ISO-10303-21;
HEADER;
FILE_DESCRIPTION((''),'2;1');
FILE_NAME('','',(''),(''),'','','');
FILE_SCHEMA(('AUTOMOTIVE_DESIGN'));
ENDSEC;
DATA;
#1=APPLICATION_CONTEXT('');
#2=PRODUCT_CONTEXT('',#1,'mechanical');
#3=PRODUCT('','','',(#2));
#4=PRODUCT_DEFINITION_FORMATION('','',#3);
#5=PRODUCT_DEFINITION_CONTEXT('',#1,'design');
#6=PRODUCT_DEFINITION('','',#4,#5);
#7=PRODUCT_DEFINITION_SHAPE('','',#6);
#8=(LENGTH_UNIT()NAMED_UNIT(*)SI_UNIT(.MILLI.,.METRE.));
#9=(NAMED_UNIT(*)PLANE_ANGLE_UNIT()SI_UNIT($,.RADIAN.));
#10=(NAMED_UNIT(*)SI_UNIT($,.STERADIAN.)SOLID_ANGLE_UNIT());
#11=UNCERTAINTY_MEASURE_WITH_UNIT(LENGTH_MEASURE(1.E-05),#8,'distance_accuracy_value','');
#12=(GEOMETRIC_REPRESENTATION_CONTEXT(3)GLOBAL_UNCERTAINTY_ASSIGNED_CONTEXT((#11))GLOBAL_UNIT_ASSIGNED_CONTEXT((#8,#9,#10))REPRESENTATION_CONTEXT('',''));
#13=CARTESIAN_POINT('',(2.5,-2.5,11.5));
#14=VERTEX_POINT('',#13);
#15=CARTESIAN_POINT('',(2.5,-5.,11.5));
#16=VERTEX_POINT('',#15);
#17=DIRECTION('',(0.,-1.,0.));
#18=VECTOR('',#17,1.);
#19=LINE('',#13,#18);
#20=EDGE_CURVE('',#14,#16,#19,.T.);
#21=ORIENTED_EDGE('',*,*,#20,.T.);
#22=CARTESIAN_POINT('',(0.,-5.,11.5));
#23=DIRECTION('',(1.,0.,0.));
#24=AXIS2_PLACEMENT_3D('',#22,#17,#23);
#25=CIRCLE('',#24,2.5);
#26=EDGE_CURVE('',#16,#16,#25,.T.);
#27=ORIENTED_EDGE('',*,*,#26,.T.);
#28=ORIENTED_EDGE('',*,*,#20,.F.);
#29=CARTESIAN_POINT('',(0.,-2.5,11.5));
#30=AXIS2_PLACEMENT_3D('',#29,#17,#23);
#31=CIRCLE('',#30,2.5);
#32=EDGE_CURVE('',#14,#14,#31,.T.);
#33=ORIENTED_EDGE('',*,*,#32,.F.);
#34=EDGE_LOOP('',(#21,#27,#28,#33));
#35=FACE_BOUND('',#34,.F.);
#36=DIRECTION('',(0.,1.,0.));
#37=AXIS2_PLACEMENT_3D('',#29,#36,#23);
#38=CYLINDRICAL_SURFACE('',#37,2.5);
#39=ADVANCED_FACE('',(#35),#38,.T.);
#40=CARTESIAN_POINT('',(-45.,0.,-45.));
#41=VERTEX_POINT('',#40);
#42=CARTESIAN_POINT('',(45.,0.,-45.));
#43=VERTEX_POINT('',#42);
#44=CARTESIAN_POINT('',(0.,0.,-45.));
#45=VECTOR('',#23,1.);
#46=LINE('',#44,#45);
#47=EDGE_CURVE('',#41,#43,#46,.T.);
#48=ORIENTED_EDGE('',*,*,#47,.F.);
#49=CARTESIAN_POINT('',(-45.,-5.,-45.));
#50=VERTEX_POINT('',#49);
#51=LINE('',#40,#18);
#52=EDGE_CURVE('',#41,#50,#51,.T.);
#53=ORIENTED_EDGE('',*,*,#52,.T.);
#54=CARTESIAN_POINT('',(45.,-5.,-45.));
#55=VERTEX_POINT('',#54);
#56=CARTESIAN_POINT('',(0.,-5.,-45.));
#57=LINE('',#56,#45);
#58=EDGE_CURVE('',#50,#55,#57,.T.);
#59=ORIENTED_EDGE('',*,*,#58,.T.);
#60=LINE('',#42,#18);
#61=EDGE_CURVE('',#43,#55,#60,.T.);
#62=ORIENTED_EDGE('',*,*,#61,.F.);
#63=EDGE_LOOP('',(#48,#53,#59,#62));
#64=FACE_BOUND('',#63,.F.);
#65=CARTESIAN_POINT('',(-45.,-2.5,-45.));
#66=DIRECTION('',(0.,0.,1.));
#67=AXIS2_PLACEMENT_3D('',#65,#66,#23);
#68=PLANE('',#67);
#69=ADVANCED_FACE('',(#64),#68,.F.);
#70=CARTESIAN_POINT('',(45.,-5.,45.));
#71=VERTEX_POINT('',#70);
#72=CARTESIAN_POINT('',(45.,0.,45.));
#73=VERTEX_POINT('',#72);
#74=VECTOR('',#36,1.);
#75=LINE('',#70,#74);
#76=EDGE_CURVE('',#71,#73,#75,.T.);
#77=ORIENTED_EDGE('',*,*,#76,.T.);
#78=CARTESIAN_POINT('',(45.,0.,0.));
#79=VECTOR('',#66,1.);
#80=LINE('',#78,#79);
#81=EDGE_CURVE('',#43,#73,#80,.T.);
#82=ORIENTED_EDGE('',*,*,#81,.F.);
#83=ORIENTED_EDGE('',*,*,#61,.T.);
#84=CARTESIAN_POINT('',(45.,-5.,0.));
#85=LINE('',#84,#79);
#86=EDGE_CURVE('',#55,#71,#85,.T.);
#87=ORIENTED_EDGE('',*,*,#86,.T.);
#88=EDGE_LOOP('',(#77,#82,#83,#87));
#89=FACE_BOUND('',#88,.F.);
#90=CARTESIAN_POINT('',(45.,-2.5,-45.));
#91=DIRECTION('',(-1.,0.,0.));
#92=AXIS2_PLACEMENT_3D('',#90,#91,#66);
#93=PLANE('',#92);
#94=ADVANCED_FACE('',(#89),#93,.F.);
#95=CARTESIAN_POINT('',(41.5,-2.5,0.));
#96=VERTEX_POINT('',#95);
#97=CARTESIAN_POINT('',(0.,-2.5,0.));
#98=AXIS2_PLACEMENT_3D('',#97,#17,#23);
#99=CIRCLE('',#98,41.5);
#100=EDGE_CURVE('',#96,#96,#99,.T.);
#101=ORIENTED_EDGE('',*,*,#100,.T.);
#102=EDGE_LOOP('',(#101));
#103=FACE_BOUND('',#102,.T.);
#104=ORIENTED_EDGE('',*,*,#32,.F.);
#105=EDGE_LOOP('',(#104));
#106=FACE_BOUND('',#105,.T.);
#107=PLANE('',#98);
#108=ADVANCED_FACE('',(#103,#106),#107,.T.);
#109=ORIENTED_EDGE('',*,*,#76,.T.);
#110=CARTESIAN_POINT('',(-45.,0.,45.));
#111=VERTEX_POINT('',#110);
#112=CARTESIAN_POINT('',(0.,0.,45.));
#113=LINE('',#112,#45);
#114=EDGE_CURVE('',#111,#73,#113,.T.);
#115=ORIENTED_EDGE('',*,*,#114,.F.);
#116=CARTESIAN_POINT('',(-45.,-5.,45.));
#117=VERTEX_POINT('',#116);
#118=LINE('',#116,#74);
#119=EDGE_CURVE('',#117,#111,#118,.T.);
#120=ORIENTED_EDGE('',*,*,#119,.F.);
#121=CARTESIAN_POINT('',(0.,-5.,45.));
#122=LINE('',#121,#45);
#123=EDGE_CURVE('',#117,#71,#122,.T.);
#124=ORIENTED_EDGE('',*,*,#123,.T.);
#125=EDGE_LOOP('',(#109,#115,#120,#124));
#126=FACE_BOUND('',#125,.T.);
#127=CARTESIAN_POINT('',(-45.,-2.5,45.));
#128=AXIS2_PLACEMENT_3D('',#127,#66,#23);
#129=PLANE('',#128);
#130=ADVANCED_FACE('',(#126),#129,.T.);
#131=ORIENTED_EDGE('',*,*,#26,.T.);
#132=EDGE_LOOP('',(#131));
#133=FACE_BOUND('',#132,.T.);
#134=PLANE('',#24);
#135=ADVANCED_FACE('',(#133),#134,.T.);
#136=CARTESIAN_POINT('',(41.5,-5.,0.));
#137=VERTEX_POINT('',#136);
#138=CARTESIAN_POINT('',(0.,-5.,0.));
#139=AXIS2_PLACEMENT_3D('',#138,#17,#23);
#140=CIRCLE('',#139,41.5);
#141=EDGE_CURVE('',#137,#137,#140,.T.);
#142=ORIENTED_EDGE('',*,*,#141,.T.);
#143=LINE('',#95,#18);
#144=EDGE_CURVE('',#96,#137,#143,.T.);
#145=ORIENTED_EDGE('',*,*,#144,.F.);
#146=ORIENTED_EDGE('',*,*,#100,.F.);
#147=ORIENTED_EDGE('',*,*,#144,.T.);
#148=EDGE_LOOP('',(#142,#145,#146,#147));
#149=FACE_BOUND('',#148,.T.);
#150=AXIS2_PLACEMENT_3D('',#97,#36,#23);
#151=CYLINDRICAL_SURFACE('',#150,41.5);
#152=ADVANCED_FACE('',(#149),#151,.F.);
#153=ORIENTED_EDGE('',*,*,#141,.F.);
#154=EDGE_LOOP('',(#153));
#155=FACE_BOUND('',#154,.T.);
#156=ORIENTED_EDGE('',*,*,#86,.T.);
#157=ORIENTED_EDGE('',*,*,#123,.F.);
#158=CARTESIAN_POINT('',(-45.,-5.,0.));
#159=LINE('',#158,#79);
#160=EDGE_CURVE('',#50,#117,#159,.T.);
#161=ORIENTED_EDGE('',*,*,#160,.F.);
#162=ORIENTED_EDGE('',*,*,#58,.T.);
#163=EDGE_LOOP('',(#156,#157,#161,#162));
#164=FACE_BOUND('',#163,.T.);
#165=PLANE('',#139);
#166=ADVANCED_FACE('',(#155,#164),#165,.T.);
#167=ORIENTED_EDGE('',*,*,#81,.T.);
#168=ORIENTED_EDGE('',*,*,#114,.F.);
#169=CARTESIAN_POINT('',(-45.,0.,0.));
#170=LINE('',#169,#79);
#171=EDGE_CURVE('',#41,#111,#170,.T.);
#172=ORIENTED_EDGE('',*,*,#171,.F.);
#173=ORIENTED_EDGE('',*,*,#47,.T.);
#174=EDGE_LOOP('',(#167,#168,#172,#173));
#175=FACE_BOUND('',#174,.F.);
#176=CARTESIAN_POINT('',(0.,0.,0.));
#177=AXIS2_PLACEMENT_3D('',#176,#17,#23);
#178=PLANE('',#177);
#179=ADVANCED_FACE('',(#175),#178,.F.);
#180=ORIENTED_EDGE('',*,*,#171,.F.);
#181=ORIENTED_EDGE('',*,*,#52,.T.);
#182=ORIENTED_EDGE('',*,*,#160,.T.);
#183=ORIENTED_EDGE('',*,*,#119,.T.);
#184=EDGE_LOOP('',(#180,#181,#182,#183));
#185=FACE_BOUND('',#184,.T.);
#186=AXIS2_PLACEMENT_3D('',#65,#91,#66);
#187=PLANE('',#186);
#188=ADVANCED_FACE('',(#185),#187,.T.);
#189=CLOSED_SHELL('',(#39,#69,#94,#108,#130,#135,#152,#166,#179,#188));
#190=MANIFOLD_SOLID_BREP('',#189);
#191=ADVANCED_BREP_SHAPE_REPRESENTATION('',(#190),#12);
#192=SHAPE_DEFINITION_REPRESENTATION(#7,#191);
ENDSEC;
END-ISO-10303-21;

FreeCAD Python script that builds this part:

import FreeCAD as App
import Part
import Sketcher

doc = App.newDocument("Part")
params = doc.addObject("Spreadsheet::Sheet", "Params")
for row, (alias, value) in enumerate([
    ("sketch1_width", "90 mm"),
    ("pad1_length", "2.5 mm"),
    ("sketch2_diameter", "83 mm"),
    ("sketch2_width", "90 mm"),
    ("pad2_length", "2.5 mm"),
    ("sketch3_diameter", "5 mm"),
    ("pad3_length", "2.5 mm"),
], start=1):
    params.set(f"A{row}", alias)
    params.set(f"B{row}", "=" + value)
    params.setAlias(f"B{row}", alias)

body = doc.addObject("PartDesign::Body", "Body")

sketch1 = doc.addObject("Sketcher::SketchObject", "Sketch")
body.addObject(sketch1)
sketch1.AttachmentSupport = (doc.XZ_Plane, [""])
sketch1.MapMode = "FlatFace"
sketch1.addGeometry(Part.LineSegment(App.Vector(-45, 45, 0), App.Vector(-45, -45, 0)), False)
sketch1.addGeometry(Part.LineSegment(App.Vector(-45, -45, 0), App.Vector(45, -45, 0)), False)
sketch1.addGeometry(Part.LineSegment(App.Vector(45, -45, 0), App.Vector(45, 45, 0)), False)
sketch1.addGeometry(Part.LineSegment(App.Vector(45, 45, 0), App.Vector(-45, 45, 0)), False)
sketch1.addConstraint(Sketcher.Constraint("Coincident", 0, 2, 1, 1))
sketch1.addConstraint(Sketcher.Constraint("Coincident", 1, 2, 2, 1))
sketch1.addConstraint(Sketcher.Constraint("Coincident", 2, 2, 3, 1))
sketch1.addConstraint(Sketcher.Constraint("Coincident", 3, 2, 0, 1))
sketch1.addConstraint(Sketcher.Constraint("Vertical", 0))
sketch1.addConstraint(Sketcher.Constraint("Horizontal", 1))
sketch1.addConstraint(Sketcher.Constraint("Vertical", 2))
sketch1.addConstraint(Sketcher.Constraint("Horizontal", 3))
sketch1.addConstraint(Sketcher.Constraint("Symmetric", 0, 2, 2, 2, -1, 1))
sketch1.addConstraint(Sketcher.Constraint("Equal", 3, 0))
sketch1.addConstraint(Sketcher.Constraint("DistanceX", 1, 1, 1, 2, 90.0))
sketch1.setExpression("Constraints[10]", "Params.sketch1_width")
pad1 = doc.addObject("PartDesign::Pad", "Pad")
body.addObject(pad1)
pad1.Profile = sketch1
pad1.setExpression("Length", "Params.pad1_length")

sketch2 = doc.addObject("Sketcher::SketchObject", "Sketch001")
body.addObject(sketch2)
sketch2.AttachmentSupport = (doc.XZ_Plane, [""])
sketch2.MapMode = "FlatFace"
sketch2.AttachmentOffset = App.Placement(App.Vector(0, 0, 2.5), App.Rotation())
sketch2.addGeometry(Part.LineSegment(App.Vector(-45, 45, 0), App.Vector(-45, -45, 0)), False)
sketch2.addGeometry(Part.LineSegment(App.Vector(-45, -45, 0), App.Vector(45, -45, 0)), False)
sketch2.addGeometry(Part.LineSegment(App.Vector(45, -45, 0), App.Vector(45, 45, 0)), False)
sketch2.addGeometry(Part.LineSegment(App.Vector(45, 45, 0), App.Vector(-45, 45, 0)), False)
sketch2.addGeometry(Part.Circle(App.Vector(0, 0, 0), App.Vector(0, 0, 1), 41.5), False)
sketch2.addConstraint(Sketcher.Constraint("Coincident", 0, 2, 1, 1))
sketch2.addConstraint(Sketcher.Constraint("Coincident", 1, 2, 2, 1))
sketch2.addConstraint(Sketcher.Constraint("Coincident", 2, 2, 3, 1))
sketch2.addConstraint(Sketcher.Constraint("Coincident", 3, 2, 0, 1))
sketch2.addConstraint(Sketcher.Constraint("Vertical", 0))
sketch2.addConstraint(Sketcher.Constraint("Horizontal", 1))
sketch2.addConstraint(Sketcher.Constraint("Vertical", 2))
sketch2.addConstraint(Sketcher.Constraint("Horizontal", 3))
sketch2.addConstraint(Sketcher.Constraint("Coincident", 4, 3, -1, 1))
sketch2.addConstraint(Sketcher.Constraint("Symmetric", 0, 2, 2, 2, -1, 1))
sketch2.addConstraint(Sketcher.Constraint("Equal", 3, 0))
sketch2.addConstraint(Sketcher.Constraint("Diameter", 4, 83.0))
sketch2.addConstraint(Sketcher.Constraint("DistanceX", 1, 1, 1, 2, 90.0))
sketch2.setExpression("Constraints[11]", "Params.sketch2_diameter")
sketch2.setExpression("Constraints[12]", "Params.sketch2_width")
pad2 = doc.addObject("PartDesign::Pad", "Pad001")
body.addObject(pad2)
pad2.Profile = sketch2
pad2.setExpression("Length", "Params.pad2_length")

sketch3 = doc.addObject("Sketcher::SketchObject", "Sketch002")
body.addObject(sketch3)
sketch3.AttachmentSupport = (doc.XZ_Plane, [""])
sketch3.MapMode = "FlatFace"
sketch3.AttachmentOffset = App.Placement(App.Vector(0, 0, 2.5), App.Rotation())
sketch3.addGeometry(Part.Circle(App.Vector(0, 11.5, 0), App.Vector(0, 0, 1), 2.5), False)
sketch3.addConstraint(Sketcher.Constraint("PointOnObject", 0, 3, -2))
sketch3.addConstraint(Sketcher.Constraint("Diameter", 0, 5.0))
sketch3.addConstraint(Sketcher.Constraint("DistanceY", -1, 1, 0, 3, 11.5))
sketch3.setExpression("Constraints[1]", "Params.sketch3_diameter")
pad3 = doc.addObject("PartDesign::Pad", "Pad002")
body.addObject(pad3)
pad3.Profile = sketch3
pad3.setExpression("Length", "Params.pad3_length")

doc.recompute()
